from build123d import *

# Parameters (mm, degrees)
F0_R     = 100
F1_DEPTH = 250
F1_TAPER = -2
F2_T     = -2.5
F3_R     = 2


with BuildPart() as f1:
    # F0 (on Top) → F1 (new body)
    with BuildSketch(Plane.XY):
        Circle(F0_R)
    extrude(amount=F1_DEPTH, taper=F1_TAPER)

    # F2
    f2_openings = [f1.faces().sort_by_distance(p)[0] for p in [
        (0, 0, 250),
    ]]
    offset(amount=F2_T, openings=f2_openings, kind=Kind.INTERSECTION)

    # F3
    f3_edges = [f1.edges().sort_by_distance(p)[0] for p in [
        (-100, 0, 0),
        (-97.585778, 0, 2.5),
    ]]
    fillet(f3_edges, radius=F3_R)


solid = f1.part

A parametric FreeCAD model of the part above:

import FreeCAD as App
import Part
import Sketcher
from FreeCAD import Vector


def edges_at(feature, points):
    """Names of the edges that pass closest to the given points."""
    edges = feature.Shape.Edges
    near = lambda p: min(range(len(edges)), key=lambda i: edges[i].distToShape(Part.Vertex(*p))[0])
    return sorted({f"Edge{near(p) + 1}" for p in points})


def faces_at(feature, points):
    """Names of the faces that lie closest to the given points."""
    faces = feature.Shape.Faces
    near = lambda p: min(range(len(faces)), key=lambda i: faces[i].distToShape(Part.Vertex(*p))[0])
    return sorted({f"Face{near(p) + 1}" for p in points})

doc = App.newDocument("Part")
body = doc.addObject("PartDesign::Body", "Body")

# Sketch on XY plane
sketch1 = body.newObject("Sketcher::SketchObject", "Sketch")
sketch1.AttachmentSupport = (doc.getObject("XY_Plane"), [""])
sketch1.MapMode = "FlatFace"
sketch1.addGeometry(Part.Circle(Vector(0, 0, 0), Vector(0, 0, 1), 100), False)
sketch1.addConstraint([
    Sketcher.Constraint("Coincident", 0, 3, -1, 1),
    Sketcher.Constraint("Diameter", 0, 200.0),
])
pad1 = body.newObject("PartDesign::Pad", "Pad")
pad1.Profile = sketch1
pad1.Length = 250
pad1.TaperAngle = 2
doc.recompute()

thickness = body.newObject("PartDesign::Thickness", "Thickness")
thickness.Base = (pad1, faces_at(pad1, [(0, 0, 250)]))
thickness.Value = 2.5
thickness.Reversed = True
thickness.Join = "Intersection"
doc.recompute()

fillet = body.newObject("PartDesign::Fillet", "Fillet")
fillet.Base = (thickness, edges_at(thickness, [(-100, 0, 0), (-97.586, 0, 2.5)]))
fillet.Radius = 2

doc.recompute()
